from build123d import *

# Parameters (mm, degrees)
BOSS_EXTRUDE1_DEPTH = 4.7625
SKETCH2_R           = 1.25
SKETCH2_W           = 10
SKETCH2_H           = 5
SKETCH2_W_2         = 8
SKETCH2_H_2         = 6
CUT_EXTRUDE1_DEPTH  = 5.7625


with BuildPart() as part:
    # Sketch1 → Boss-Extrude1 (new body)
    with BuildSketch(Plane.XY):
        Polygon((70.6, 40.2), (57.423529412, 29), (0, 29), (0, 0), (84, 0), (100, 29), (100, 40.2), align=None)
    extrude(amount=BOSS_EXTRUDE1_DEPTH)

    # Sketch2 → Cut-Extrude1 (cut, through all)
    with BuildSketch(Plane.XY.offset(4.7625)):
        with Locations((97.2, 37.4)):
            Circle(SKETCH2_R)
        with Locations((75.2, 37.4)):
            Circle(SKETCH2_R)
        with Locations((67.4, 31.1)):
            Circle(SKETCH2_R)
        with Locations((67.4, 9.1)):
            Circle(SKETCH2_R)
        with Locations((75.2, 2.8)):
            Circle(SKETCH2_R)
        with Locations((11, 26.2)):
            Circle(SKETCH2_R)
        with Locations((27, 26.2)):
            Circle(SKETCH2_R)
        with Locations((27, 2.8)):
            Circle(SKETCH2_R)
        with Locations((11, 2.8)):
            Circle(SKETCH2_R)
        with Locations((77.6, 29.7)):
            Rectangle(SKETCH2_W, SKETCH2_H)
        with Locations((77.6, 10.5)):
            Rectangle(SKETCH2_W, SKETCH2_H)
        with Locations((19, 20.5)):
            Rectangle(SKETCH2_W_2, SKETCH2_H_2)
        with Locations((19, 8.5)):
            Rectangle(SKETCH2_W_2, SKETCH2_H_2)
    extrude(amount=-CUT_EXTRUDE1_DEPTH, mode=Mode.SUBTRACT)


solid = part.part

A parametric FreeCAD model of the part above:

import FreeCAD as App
import Part
import Sketcher

V = App.Vector
Q = App.Units.Quantity

doc = App.newDocument("Part")
body = doc.addObject("PartDesign::Body", "Body")

# Sketch on XY plane
sketch1 = doc.addObject("Sketcher::SketchObject", "Sketch")
body.addObject(sketch1)
sketch1.AttachmentSupport = (doc.XY_Plane, [""])
sketch1.MapMode = "FlatFace"
sketch1.addGeometry([
    Part.LineSegment(V(71, 40, 0), V(57, 29, 0)),  # 0
    Part.LineSegment(V(57, 29, 0), V(0, 29, 0)),  # 1
    Part.LineSegment(V(0, 29, 0), V(0, 0, 0)),  # 2
    Part.LineSegment(V(0, 0, 0), V(84, 0, 0)),  # 3
    Part.LineSegment(V(84, 0, 0), V(100, 29, 0)),  # 4
    Part.LineSegment(V(100, 29, 0), V(100, 40, 0)),  # 5
    Part.LineSegment(V(100, 40, 0), V(71, 40, 0)),  # 6
], False)
sketch1.addConstraint([
    Sketcher.Constraint("Coincident", 0, 2, 1, 1),
    Sketcher.Constraint("Coincident", 1, 2, 2, 1),
    Sketcher.Constraint("Coincident", 2, 2, 3, 1),
    Sketcher.Constraint("Coincident", 3, 2, 4, 1),
    Sketcher.Constraint("Coincident", 4, 2, 5, 1),
    Sketcher.Constraint("Coincident", 5, 2, 6, 1),
    Sketcher.Constraint("Coincident", 6, 2, 0, 1),
    Sketcher.Constraint("Horizontal", 1),
    Sketcher.Constraint("Vertical", 2),
    Sketcher.Constraint("Horizontal", 3),
    Sketcher.Constraint("Vertical", 5),
    Sketcher.Constraint("Horizontal", 6),
    Sketcher.Constraint("Coincident", 2, 2, -1, 1),
    Sketcher.Constraint("Horizontal", 1, 2, 4, 2),
    Sketcher.Constraint("DistanceX", 3, 1, 3, 2, Q("84 mm")),
    Sketcher.Constraint("DistanceY", 2, 2, 2, 1, Q("29 mm")),
    Sketcher.Constraint("DistanceX", 6, 2, 6, 1, Q("29.4 mm")),
    Sketcher.Constraint("DistanceY", 5, 1, 5, 2, Q("11.2 mm")),
    Sketcher.Constraint("DistanceX", -1, 1, 4, 2, Q("100 mm")),
    Sketcher.Constraint("DistanceX", 1, 2, 1, 1, Q("57.423529 mm")),
])
pad1 = doc.addObject("PartDesign::Pad", "Pad")
body.addObject(pad1)
pad1.Profile = sketch1
pad1.Length = 4.7625

# Sketch on XY plane
sketch2 = doc.addObject("Sketcher::SketchObject", "Sketch001")
body.addObject(sketch2)
sketch2.AttachmentSupport = (doc.XY_Plane, [""])
sketch2.MapMode = "FlatFace"
sketch2.AttachmentOffset = App.Placement(V(0, 0, 4.7625), App.Rotation())
sketch2.addGeometry([
    Part.Circle(V(97.2, 37.4, 0), V(0, 0, 1), 1.2),  # 0
    Part.Circle(V(75.2, 37.4, 0), V(0, 0, 1), 1.2),  # 1
    Part.Circle(V(67.4, 31.1, 0), V(0, 0, 1), 1.2),  # 2
    Part.Circle(V(67.4, 9.1, 0), V(0, 0, 1), 1.2),  # 3
    Part.Circle(V(75.2, 2.8, 0), V(0, 0, 1), 1.2),  # 4
    Part.Circle(V(11, 26.2, 0), V(0, 0, 1), 1.2),  # 5
    Part.Circle(V(27, 26.2, 0), V(0, 0, 1), 1.2),  # 6
    Part.Circle(V(27, 2.8, 0), V(0, 0, 1), 1.2),  # 7
    Part.Circle(V(11, 2.8, 0), V(0, 0, 1), 1.2),  # 8
    Part.LineSegment(V(72.6, 32.2, 0), V(72.6, 27.2, 0)),  # 9
    Part.LineSegment(V(72.6, 27.2, 0), V(82.6, 27.2, 0)),  # 10
    Part.LineSegment(V(82.6, 27.2, 0), V(82.6, 32.2, 0)),  # 11
    Part.LineSegment(V(82.6, 32.2, 0), V(72.6, 32.2, 0)),  # 12
    Part.LineSegment(V(72.6, 13, 0), V(72.6, 8, 0)),  # 13
    Part.LineSegment(V(72.6, 8, 0), V(82.6, 8, 0)),  # 14
    Part.LineSegment(V(82.6, 8, 0), V(82.6, 13, 0)),  # 15
    Part.LineSegment(V(82.6, 13, 0), V(72.6, 13, 0)),  # 16
    Part.LineSegment(V(15, 23.5, 0), V(15, 17.5, 0)),  # 17
    Part.LineSegment(V(15, 17.5, 0), V(23, 17.5, 0)),  # 18
    Part.LineSegment(V(23, 17.5, 0), V(23, 23.5, 0)),  # 19
    Part.LineSegment(V(23, 23.5, 0), V(15, 23.5, 0)),  # 20
    Part.LineSegment(V(15, 11.5, 0), V(15, 5.5, 0)),  # 21
    Part.LineSegment(V(15, 5.5, 0), V(23, 5.5, 0)),  # 22
    Part.LineSegment(V(23, 5.5, 0), V(23, 11.5, 0)),  # 23
    Part.LineSegment(V(23, 11.5, 0), V(15, 11.5, 0)),  # 24
], False)
sketch2.addConstraint([
    Sketcher.Constraint("Coincident", 9, 2, 10, 1),
    Sketcher.Constraint("Coincident", 10, 2, 11, 1),
    Sketcher.Constraint("Coincident", 11, 2, 12, 1),
    Sketcher.Constraint("Coincident", 12, 2, 9, 1),
    Sketcher.Constraint("Coincident", 13, 2, 14, 1),
    Sketcher.Constraint("Coincident", 14, 2, 15, 1),
    Sketcher.Constraint("Coincident", 15, 2, 16, 1),
    Sketcher.Constraint("Coincident", 16, 2, 13, 1),
    Sketcher.Constraint("Coincident", 17, 2, 18, 1),
    Sketcher.Constraint("Coincident", 18, 2, 19, 1),
    Sketcher.Constraint("Coincident", 19, 2, 20, 1),
    Sketcher.Constraint("Coincident", 20, 2, 17, 1),
    Sketcher.Constraint("Coincident", 21, 2, 22, 1),
    Sketcher.Constraint("Coincident", 22, 2, 23, 1),
    Sketcher.Constraint("Coincident", 23, 2, 24, 1),
    Sketcher.Constraint("Coincident", 24, 2, 21, 1),
    Sketcher.Constraint("Vertical", 9),
    Sketcher.Constraint("Horizontal", 10),
    Sketcher.Constraint("Vertical", 11),
    Sketcher.Constraint("Horizontal", 12),
    Sketcher.Constraint("Vertical", 13),
    Sketcher.Constraint("Horizontal", 14),
    Sketcher.Constraint("Vertical", 15),
    Sketcher.Constraint("Horizontal", 16),
    Sketcher.Constraint("Vertical", 17),
    Sketcher.Constraint("Horizontal", 18),
    Sketcher.Constraint("Vertical", 19),
    Sketcher.Constraint("Horizontal", 20),
    Sketcher.Constraint("Vertical", 21),
    Sketcher.Constraint("Horizontal", 22),
    Sketcher.Constraint("Vertical", 23),
    Sketcher.Constraint("Horizontal", 24),
    Sketcher.Constraint("Equal", 0, 1),
    Sketcher.Constraint("Equal", 1, 2),
    Sketcher.Constraint("Equal", 2, 3),
    Sketcher.Constraint("Equal", 3, 4),
    Sketcher.Constraint("Equal", 4, 5),
    Sketcher.Constraint("Equal", 5, 6),
    Sketcher.Constraint("Equal", 6, 7),
    Sketcher.Constraint("Equal", 7, 8),
    Sketcher.Constraint("Horizontal", 0, 3, 1, 3),
    Sketcher.Constraint("Horizontal", 5, 3, 6, 3),
    Sketcher.Constraint("Horizontal", 4, 3, 7, 3),
    Sketcher.Constraint("Horizontal", 7, 3, 8, 3),
    Sketcher.Constraint("Vertical", 2, 3, 3, 3),
    Sketcher.Constraint("Vertical", 1, 3, 4, 3),
    Sketcher.Constraint("Vertical", 6, 3, 7, 3),
    Sketcher.Constraint("Vertical", 5, 3, 8, 3),
    Sketcher.Constraint("Vertical", 12, 2, 13, 2),
    Sketcher.Constraint("Vertical", 11, 2, 14, 2),
    Sketcher.Constraint("Vertical", 20, 2, 21, 2),
    Sketcher.Constraint("Vertical", 19, 2, 22, 2),
    Sketcher.Constraint("Equal", 11, 13),
    Sketcher.Constraint("Equal", 19, 21),
    Sketcher.Constraint("Diameter", 0, Q("2.5 mm")),
    Sketcher.Constraint("DistanceX", 10, 1, 10, 2, Q("10 mm")),
    Sketcher.Constraint("DistanceX", 18, 1, 18, 2, Q("8 mm")),
    Sketcher.Constraint("DistanceY", 9, 2, 9, 1, Q("5 mm")),
    Sketcher.Constraint("DistanceY", 17, 2, 17, 1, Q("6 mm")),
    Sketcher.Constraint("DistanceX", -1, 1, 5, 3, Q("11 mm")),
    Sketcher.Constraint("DistanceX", -1, 1, 6, 3, Q("27 mm")),
    Sketcher.Constraint("DistanceY", -1, 1, 13, 2, Q("8 mm")),
    Sketcher.Constraint("DistanceX", -1, 1, 17, 2, Q("15 mm")),
    Sketcher.Constraint("DistanceX", 1, 3, 0, 3, Q("22 mm")),
    Sketcher.Constraint("DistanceY", 3, 3, 2, 3, Q("22 mm")),
    Sketcher.Constraint("DistanceY", 21, 2, 17, 2, Q("12 mm")),
    Sketcher.Constraint("DistanceX", -1, 1, 0, 3, Q("97.2 mm")),
    Sketcher.Constraint("DistanceY", -1, 1, 0, 3, Q("37.4 mm")),
    Sketcher.Constraint("DistanceX", -1, 1, 2, 3, Q("67.4 mm")),
    Sketcher.Constraint("DistanceY", -1, 1, 2, 3, Q("31.1 mm")),
    Sketcher.Constraint("DistanceY", -1, 1, 4, 3, Q("2.8 mm")),
    Sketcher.Constraint("DistanceY", -1, 1, 5, 3, Q("26.2 mm")),
    Sketcher.Constraint("DistanceX", -1, 1, 9, 2, Q("72.6 mm")),
    Sketcher.Constraint("DistanceY", -1, 1, 9, 2, Q("27.2 mm")),
    Sketcher.Constraint("DistanceY", -1, 1, 17, 2, Q("17.5 mm")),
])
pocket1 = doc.addObject("PartDesign::Pocket", "Pocket")
body.addObject(pocket1)
pocket1.Profile = sketch2
pocket1.Type = "ThroughAll"

doc.recompute()
